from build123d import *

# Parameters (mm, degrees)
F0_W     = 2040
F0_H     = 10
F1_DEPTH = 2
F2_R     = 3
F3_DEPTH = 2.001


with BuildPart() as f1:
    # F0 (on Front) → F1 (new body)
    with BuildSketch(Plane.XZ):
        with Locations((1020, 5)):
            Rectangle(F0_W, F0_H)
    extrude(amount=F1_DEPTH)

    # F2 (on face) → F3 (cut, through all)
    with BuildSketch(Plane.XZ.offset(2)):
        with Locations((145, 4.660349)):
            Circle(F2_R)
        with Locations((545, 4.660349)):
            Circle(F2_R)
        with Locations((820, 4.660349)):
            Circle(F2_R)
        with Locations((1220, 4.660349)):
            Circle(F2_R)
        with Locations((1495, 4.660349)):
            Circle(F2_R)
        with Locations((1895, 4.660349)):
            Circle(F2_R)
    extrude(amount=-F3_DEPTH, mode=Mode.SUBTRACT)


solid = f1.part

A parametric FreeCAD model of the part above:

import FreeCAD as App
import Part
import Sketcher


def add_polygon(sketch, points):
    """Adds a closed chain of lines whose ends are joined by coincident constraints."""
    first, n = sketch.GeometryCount, len(points)
    for a, b in zip(points, points[1:] + points[:1]):
        sketch.addGeometry(Part.LineSegment(App.Vector(*a, 0), App.Vector(*b, 0)), False)
    for i in range(n):
        sketch.addConstraint(Sketcher.Constraint("Coincident", first + i, 2, first + (i + 1) % n, 1))

doc = App.newDocument("Part")
body = doc.addObject("PartDesign::Body", "Body")

sketch1 = body.newObject("Sketcher::SketchObject", "Sketch")
sketch1.AttachmentSupport = (doc.getObject("XZ_Plane"), [""])
sketch1.MapMode = "FlatFace"
add_polygon(sketch1, [(0, 10), (0, 0), (2040, 0), (2040, 10)])
sketch1.addConstraint([
    Sketcher.Constraint("Vertical", 0),
    Sketcher.Constraint("Horizontal", 1),
    Sketcher.Constraint("Vertical", 2),
    Sketcher.Constraint("Horizontal", 3),
    Sketcher.Constraint("Coincident", 0, 2, -1, 1),
    Sketcher.Constraint("DistanceX", 1, 1, 1, 2, 2040.0),
    Sketcher.Constraint("DistanceY", 0, 2, 0, 1, 10.0),
])
pad1 = body.newObject("PartDesign::Pad", "Pad")
pad1.Profile = sketch1
pad1.Length = 2

sketch2 = body.newObject("Sketcher::SketchObject", "Sketch001")
sketch2.AttachmentSupport = (doc.getObject("XZ_Plane"), [""])
sketch2.MapMode = "FlatFace"
sketch2.AttachmentOffset = App.Placement(App.Vector(0, 0, 2), App.Rotation())
sketch2.addGeometry([
    Part.Circle(App.Vector(145, 4.7, 0), App.Vector(0, 0, 1), 3),
    Part.Circle(App.Vector(545, 4.7, 0), App.Vector(0, 0, 1), 3),
    Part.Circle(App.Vector(820, 4.7, 0), App.Vector(0, 0, 1), 3),
    Part.Circle(App.Vector(1220, 4.7, 0), App.Vector(0, 0, 1), 3),
    Part.Circle(App.Vector(1495, 4.7, 0), App.Vector(0, 0, 1), 3),
    Part.Circle(App.Vector(1895, 4.7, 0), App.Vector(0, 0, 1), 3),
], False)
sketch2.addConstraint([
    Sketcher.Constraint("Equal", 0, 1),
    Sketcher.Constraint("Equal", 1, 2),
    Sketcher.Constraint("Equal", 2, 3),
    Sketcher.Constraint("Equal", 3, 4),
    Sketcher.Constraint("Equal", 4, 5),
    Sketcher.Constraint("Horizontal", 0, 3, 1, 3),
    Sketcher.Constraint("Horizontal", 1, 3, 2, 3),
    Sketcher.Constraint("Horizontal", 2, 3, 3, 3),
    Sketcher.Constraint("Horizontal", 3, 3, 4, 3),
    Sketcher.Constraint("Horizontal", 4, 3, 5, 3),
    Sketcher.Constraint("Diameter", 0, 6.0),
    Sketcher.Constraint("DistanceX", -1, 1, 0, 3, 145.0),
    Sketcher.Constraint("DistanceX", -1, 1, 1, 3, 545.0),
    Sketcher.Constraint("DistanceX", -1, 1, 2, 3, 820.0),
    Sketcher.Constraint("DistanceX", -1, 1, 3, 3, 1220.0),
    Sketcher.Constraint("DistanceX", -1, 1, 4, 3, 1495.0),
    Sketcher.Constraint("DistanceX", -1, 1, 5, 3, 1895.0),
    Sketcher.Constraint("DistanceY", -1, 1, 0, 3, 4.660349),
])
pocket1 = body.newObject("PartDesign::Pocket", "Pocket")
pocket1.Profile = sketch2
pocket1.Type = "ThroughAll"

doc.recompute()
